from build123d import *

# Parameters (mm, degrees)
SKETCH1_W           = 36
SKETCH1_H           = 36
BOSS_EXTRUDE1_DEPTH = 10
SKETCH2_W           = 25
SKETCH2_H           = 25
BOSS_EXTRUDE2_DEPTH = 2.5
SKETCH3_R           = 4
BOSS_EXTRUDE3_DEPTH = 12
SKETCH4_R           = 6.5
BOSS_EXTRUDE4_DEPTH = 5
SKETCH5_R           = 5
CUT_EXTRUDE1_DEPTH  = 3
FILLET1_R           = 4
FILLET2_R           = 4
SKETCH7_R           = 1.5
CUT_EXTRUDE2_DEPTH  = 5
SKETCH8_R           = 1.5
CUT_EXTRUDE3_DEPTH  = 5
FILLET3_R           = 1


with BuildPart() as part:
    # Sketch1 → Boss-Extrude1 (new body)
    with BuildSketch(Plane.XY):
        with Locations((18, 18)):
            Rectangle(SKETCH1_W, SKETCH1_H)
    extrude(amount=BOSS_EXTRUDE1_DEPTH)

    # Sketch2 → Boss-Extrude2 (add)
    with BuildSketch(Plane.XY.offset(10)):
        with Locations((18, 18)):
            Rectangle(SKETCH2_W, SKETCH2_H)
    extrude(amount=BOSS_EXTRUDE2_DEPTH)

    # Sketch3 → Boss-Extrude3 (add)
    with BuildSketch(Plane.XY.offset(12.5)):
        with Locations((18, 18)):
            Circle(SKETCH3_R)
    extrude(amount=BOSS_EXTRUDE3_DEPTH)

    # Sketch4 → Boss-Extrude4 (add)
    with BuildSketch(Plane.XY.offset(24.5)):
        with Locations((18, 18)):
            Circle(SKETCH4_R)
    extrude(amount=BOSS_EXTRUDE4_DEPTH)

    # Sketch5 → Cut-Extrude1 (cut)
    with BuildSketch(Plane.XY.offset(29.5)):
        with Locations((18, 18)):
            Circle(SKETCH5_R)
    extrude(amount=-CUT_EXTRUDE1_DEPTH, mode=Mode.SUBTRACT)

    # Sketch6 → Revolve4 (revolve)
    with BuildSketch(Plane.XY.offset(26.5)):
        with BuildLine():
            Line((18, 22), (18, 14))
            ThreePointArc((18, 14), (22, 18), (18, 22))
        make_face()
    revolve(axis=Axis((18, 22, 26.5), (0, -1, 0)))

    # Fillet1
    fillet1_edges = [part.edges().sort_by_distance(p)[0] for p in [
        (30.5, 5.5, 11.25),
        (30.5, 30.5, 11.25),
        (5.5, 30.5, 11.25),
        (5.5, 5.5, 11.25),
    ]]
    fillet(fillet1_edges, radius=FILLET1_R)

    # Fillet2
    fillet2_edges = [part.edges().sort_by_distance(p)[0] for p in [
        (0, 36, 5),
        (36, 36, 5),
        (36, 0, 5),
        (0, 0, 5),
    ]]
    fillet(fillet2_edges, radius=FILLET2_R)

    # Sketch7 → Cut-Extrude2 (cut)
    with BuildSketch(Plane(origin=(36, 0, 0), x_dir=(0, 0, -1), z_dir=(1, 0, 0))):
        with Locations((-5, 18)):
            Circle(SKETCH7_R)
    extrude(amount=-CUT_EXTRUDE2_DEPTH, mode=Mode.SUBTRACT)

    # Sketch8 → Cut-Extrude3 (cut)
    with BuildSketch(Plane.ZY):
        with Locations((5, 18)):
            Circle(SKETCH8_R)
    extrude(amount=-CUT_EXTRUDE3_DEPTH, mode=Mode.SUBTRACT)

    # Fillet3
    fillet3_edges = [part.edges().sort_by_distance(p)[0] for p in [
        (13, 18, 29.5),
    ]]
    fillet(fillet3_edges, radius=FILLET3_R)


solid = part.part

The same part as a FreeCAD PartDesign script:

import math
import FreeCAD as App
import Part
import Sketcher

V = App.Vector


def edges_at(feature, points):
    """Names of the edges that pass closest to the given points."""
    edges = feature.Shape.Edges
    near = lambda p: min(range(len(edges)), key=lambda i: edges[i].distToShape(Part.Vertex(*p))[0])
    return sorted({f"Edge{near(p) + 1}" for p in points})


def add_polygon(sketch, points):
    """Adds a closed chain of lines whose ends are joined by coincident constraints."""
    first, n = sketch.GeometryCount, len(points)
    for a, b in zip(points, points[1:] + points[:1]):
        sketch.addGeometry(Part.LineSegment(App.Vector(*a, 0), App.Vector(*b, 0)), False)
    for i in range(n):
        sketch.addConstraint(Sketcher.Constraint("Coincident", first + i, 2, first + (i + 1) % n, 1))

doc = App.newDocument("Part")
body = doc.addObject("PartDesign::Body", "Body")

# Sketch on XY plane
sketch1 = body.newObject("Sketcher::SketchObject", "Sketch")
sketch1.AttachmentSupport = (doc.getObject("XY_Plane"), [""])
sketch1.MapMode = "FlatFace"
add_polygon(sketch1, [(0, 36), (0, 0), (36, 0), (36, 36)])  # lines 0-3
sketch1.addConstraint([
    Sketcher.Constraint("Vertical", 0),
    Sketcher.Constraint("Horizontal", 1),
    Sketcher.Constraint("Vertical", 2),
    Sketcher.Constraint("Horizontal", 3),
    Sketcher.Constraint("Coincident", 0, 2, -1, 1),
    Sketcher.Constraint("Equal", 3, 0),
    Sketcher.Constraint("DistanceX", 1, 1, 1, 2, 36.0),
])
pad1 = body.newObject("PartDesign::Pad", "Pad")
pad1.Profile = sketch1
pad1.Length = 10

# Sketch on XY plane
sketch2 = body.newObject("Sketcher::SketchObject", "Sketch001")
sketch2.AttachmentSupport = (doc.getObject("XY_Plane"), [""])
sketch2.MapMode = "FlatFace"
sketch2.AttachmentOffset = App.Placement(V(0, 0, 10), App.Rotation())
add_polygon(sketch2, [(5.5, 30.5), (5.5, 5.5), (30.5, 5.5), (30.5, 30.5)])  # lines 0-3
sketch2.addConstraint([
    Sketcher.Constraint("Vertical", 0),
    Sketcher.Constraint("Horizontal", 1),
    Sketcher.Constraint("Vertical", 2),
    Sketcher.Constraint("Horizontal", 3),
    Sketcher.Constraint("Equal", 3, 0),
    Sketcher.Constraint("DistanceX", 1, 1, 1, 2, 25.0),
    Sketcher.Constraint("DistanceX", -1, 1, 0, 2, 5.5),
    Sketcher.Constraint("DistanceY", -1, 1, 0, 2, 5.5),
])
pad2 = body.newObject("PartDesign::Pad", "Pad001")
pad2.Profile = sketch2
pad2.Length = 2.5

# Sketch on XY plane
sketch3 = body.newObject("Sketcher::SketchObject", "Sketch002")
sketch3.AttachmentSupport = (doc.getObject("XY_Plane"), [""])
sketch3.MapMode = "FlatFace"
sketch3.AttachmentOffset = App.Placement(V(0, 0, 12.5), App.Rotation())
sketch3.addGeometry(Part.Circle(V(18, 18, 0), V(0, 0, 1), 4), False)
sketch3.addConstraint([
    Sketcher.Constraint("Diameter", 0, 8.0),
    Sketcher.Constraint("DistanceX", -1, 1, 0, 3, 18.0),
    Sketcher.Constraint("DistanceY", -1, 1, 0, 3, 18.0),
])
pad3 = body.newObject("PartDesign::Pad", "Pad002")
pad3.Profile = sketch3
pad3.Length = 12

# Sketch on XY plane
sketch4 = body.newObject("Sketcher::SketchObject", "Sketch003")
sketch4.AttachmentSupport = (doc.getObject("XY_Plane"), [""])
sketch4.MapMode = "FlatFace"
sketch4.AttachmentOffset = App.Placement(V(0, 0, 24.5), App.Rotation())
sketch4.addGeometry(Part.Circle(V(18, 18, 0), V(0, 0, 1), 6.5), False)
sketch4.addConstraint([
    Sketcher.Constraint("Diameter", 0, 13.0),
    Sketcher.Constraint("DistanceX", -1, 1, 0, 3, 18.0),
    Sketcher.Constraint("DistanceY", -1, 1, 0, 3, 18.0),
])
pad4 = body.newObject("PartDesign::Pad", "Pad003")
pad4.Profile = sketch4
pad4.Length = 5

# Sketch on XY plane
sketch5 = body.newObject("Sketcher::SketchObject", "Sketch004")
sketch5.AttachmentSupport = (doc.getObject("XY_Plane"), [""])
sketch5.MapMode = "FlatFace"
sketch5.AttachmentOffset = App.Placement(V(0, 0, 29.5), App.Rotation())
sketch5.addGeometry(Part.Circle(V(18, 18, 0), V(0, 0, 1), 5), False)
sketch5.addConstraint([
    Sketcher.Constraint("Diameter", 0, 10.0),
    Sketcher.Constraint("DistanceX", -1, 1, 0, 3, 18.0),
    Sketcher.Constraint("DistanceY", -1, 1, 0, 3, 18.0),
])
pocket1 = body.newObject("PartDesign::Pocket", "Pocket")
pocket1.Profile = sketch5
pocket1.Length = 3

# Sketch on XY plane
sketch6 = body.newObject("Sketcher::SketchObject", "Sketch005")
sketch6.AttachmentSupport = (doc.getObject("XY_Plane"), [""])
sketch6.MapMode = "FlatFace"
sketch6.AttachmentOffset = App.Placement(V(0, 0, 26.5), App.Rotation())
sketch6.addGeometry([
    Part.LineSegment(V(18, 22, 0), V(18, 14, 0)),
    Part.ArcOfCircle(Part.Circle(V(18, 18, 0), V(0, 0, 1), 4), math.radians(-90), math.radians(90)),
], False)
sketch6.addGeometry(Part.LineSegment(V(18, 22, 0), V(18, 14, 0)), True)  # axis
sketch6.addConstraint([
    Sketcher.Constraint("Coincident", 0, 1, 1, 2),
    Sketcher.Constraint("Coincident", 1, 1, 0, 2),
    Sketcher.Constraint("Vertical", 0),
    Sketcher.Constraint("Vertical", 2),
    Sketcher.Constraint("Coincident", 2, 1, 0, 1),
    Sketcher.Constraint("Vertical", 1, 3, 0, 1),
    Sketcher.Constraint("Equal", 0, 2),
    Sketcher.Constraint("Radius", 1, 4.0),
    Sketcher.Constraint("DistanceX", -1, 1, 1, 3, 18.0),
    Sketcher.Constraint("DistanceY", -1, 1, 1, 3, 18.0),
])
revolution = body.newObject("PartDesign::Revolution", "Revolution")
revolution.Profile = sketch6
revolution.ReferenceAxis = (sketch6, ["Axis0"])
revolution.Angle = 360
doc.recompute()

fillet = body.newObject("PartDesign::Fillet", "Fillet")
fillet.Base = (revolution, edges_at(revolution, [
    (30.5, 5.5, 11.25),
    (30.5, 30.5, 11.25),
    (5.5, 30.5, 11.25),
    (5.5, 5.5, 11.25),
]))
fillet.Radius = 4
doc.recompute()

fillet2 = body.newObject("PartDesign::Fillet", "Fillet001")
fillet2.Base = (fillet, edges_at(fillet, [
    (0, 36, 5),
    (36, 36, 5),
    (36, 0, 5),
    (0, 0, 5),
]))
fillet2.Radius = 4

# Sketch on YZ plane
sketch7 = body.newObject("Sketcher::SketchObject", "Sketch006")
sketch7.AttachmentSupport = (doc.getObject("YZ_Plane"), [""])
sketch7.MapMode = "FlatFace"
sketch7.AttachmentOffset = App.Placement(V(0, 0, 36), App.Rotation())
sketch7.addGeometry(Part.Circle(V(18, 5, 0), V(0, 0, 1), 1.5), False)
sketch7.addConstraint([
    Sketcher.Constraint("Diameter", 0, 3.0),
    Sketcher.Constraint("DistanceX", -1, 1, 0, 3, 18.0),
    Sketcher.Constraint("DistanceY", -1, 1, 0, 3, 5.0),
])
pocket2 = body.newObject("PartDesign::Pocket", "Pocket001")
pocket2.Profile = sketch7
pocket2.Length = 5

# Sketch on YZ plane
sketch8 = body.newObject("Sketcher::SketchObject", "Sketch007")
sketch8.AttachmentSupport = (doc.getObject("YZ_Plane"), [""])
sketch8.MapMode = "FlatFace"
sketch8.addGeometry(Part.Circle(V(18, 5, 0), V(0, 0, 1), 1.5), False)
sketch8.addConstraint([
    Sketcher.Constraint("Diameter", 0, 3.0),
    Sketcher.Constraint("DistanceX", -1, 1, 0, 3, 18.0),
    Sketcher.Constraint("DistanceY", -1, 1, 0, 3, 5.0),
])
pocket3 = body.newObject("PartDesign::Pocket", "Pocket002")
pocket3.Profile = sketch8
pocket3.Length = 5
pocket3.Reversed = True
doc.recompute()

fillet3 = body.newObject("PartDesign::Fillet", "Fillet002")
fillet3.Base = (pocket3, edges_at(pocket3, [(13, 18, 29.5)]))
fillet3.Radius = 1

doc.recompute()
